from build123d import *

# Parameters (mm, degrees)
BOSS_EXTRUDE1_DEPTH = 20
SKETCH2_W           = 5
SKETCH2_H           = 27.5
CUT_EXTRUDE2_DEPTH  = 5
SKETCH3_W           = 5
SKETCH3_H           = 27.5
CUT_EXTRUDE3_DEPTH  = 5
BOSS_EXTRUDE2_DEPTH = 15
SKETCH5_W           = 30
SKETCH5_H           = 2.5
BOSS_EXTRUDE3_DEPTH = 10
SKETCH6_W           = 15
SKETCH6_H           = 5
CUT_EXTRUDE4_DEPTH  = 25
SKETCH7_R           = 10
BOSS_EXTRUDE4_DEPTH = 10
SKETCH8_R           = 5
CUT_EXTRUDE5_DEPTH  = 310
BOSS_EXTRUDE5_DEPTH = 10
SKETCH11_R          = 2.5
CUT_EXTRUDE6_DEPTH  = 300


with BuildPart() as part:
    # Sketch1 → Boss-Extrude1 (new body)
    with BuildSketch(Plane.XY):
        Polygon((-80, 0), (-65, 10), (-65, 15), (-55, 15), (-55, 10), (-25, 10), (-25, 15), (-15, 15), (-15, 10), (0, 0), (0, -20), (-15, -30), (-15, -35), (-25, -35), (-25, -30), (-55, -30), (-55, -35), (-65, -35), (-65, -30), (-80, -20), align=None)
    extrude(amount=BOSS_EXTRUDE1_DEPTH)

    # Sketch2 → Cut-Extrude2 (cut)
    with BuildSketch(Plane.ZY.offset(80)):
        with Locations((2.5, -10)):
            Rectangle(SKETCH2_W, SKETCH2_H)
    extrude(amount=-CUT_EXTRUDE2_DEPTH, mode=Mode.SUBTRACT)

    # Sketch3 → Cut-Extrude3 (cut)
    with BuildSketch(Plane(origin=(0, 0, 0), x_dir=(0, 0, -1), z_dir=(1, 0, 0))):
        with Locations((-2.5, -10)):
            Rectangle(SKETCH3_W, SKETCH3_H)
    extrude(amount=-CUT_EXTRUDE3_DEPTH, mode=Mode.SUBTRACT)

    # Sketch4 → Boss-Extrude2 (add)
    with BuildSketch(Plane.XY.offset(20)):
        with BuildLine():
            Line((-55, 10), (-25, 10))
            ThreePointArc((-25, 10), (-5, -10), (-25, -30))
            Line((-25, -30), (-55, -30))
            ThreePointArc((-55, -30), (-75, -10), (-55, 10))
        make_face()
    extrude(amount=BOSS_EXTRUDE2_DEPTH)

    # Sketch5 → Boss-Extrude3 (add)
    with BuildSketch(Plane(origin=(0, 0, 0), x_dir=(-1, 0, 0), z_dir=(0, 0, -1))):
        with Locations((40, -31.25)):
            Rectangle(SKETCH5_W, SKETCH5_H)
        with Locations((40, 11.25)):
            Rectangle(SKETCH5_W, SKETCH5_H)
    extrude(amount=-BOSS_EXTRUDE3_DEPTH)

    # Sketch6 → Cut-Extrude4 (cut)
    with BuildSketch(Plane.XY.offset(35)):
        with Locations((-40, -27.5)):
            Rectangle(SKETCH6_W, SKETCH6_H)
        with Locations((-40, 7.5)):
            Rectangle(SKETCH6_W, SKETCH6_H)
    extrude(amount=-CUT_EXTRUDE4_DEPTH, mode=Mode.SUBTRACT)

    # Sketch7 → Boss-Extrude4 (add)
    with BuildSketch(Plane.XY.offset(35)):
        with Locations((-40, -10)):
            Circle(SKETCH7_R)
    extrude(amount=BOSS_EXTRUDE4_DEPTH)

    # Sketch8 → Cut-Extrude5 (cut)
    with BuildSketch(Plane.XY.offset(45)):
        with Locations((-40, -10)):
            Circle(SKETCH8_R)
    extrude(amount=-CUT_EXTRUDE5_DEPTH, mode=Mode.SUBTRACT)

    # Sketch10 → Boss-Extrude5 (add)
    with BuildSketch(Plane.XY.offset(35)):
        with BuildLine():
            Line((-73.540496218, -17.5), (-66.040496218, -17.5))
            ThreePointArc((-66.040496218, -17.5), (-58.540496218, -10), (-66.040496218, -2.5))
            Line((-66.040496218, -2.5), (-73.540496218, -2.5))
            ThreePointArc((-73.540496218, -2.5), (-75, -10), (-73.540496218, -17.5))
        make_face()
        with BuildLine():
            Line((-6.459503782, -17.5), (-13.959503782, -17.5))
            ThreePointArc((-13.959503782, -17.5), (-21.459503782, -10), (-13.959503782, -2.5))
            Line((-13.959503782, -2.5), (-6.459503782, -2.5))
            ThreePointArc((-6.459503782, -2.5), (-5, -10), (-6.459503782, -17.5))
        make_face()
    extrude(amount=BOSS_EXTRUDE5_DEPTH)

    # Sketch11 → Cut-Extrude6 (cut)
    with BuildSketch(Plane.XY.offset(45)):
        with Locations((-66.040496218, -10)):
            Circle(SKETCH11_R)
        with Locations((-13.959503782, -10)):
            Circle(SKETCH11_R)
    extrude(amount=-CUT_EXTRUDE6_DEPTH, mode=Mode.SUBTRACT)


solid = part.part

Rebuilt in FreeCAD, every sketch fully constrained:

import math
import FreeCAD as App
import Part
import Sketcher

doc = App.newDocument("Part")
body = doc.addObject("PartDesign::Body", "Body")

# Sketch on XY plane
sketch1 = body.newObject("Sketcher::SketchObject", "Sketch")
sketch1.AttachmentSupport = (doc.getObject("XY_Plane"), [""])
sketch1.MapMode = "FlatFace"
sketch1.addGeometry(Part.LineSegment(App.Vector(-65, 10, 0), App.Vector(-80, 0, 0)), False)
sketch1.addGeometry(Part.LineSegment(App.Vector(-80, 0, 0), App.Vector(-80, -20, 0)), False)
sketch1.addGeometry(Part.LineSegment(App.Vector(-80, -20, 0), App.Vector(-65, -30, 0)), False)
sketch1.addGeometry(Part.LineSegment(App.Vector(-65, -30, 0), App.Vector(-65, -35, 0)), False)
sketch1.addGeometry(Part.LineSegment(App.Vector(-65, -35, 0), App.Vector(-55, -35, 0)), False)
sketch1.addGeometry(Part.LineSegment(App.Vector(-55, -35, 0), App.Vector(-55, -30, 0)), False)
sketch1.addGeometry(Part.LineSegment(App.Vector(-55, -30, 0), App.Vector(-25, -30, 0)), False)
sketch1.addGeometry(Part.LineSegment(App.Vector(-25, -30, 0), App.Vector(-25, -35, 0)), False)
sketch1.addGeometry(Part.LineSegment(App.Vector(-25, -35, 0), App.Vector(-15, -35, 0)), False)
sketch1.addGeometry(Part.LineSegment(App.Vector(-15, -35, 0), App.Vector(-15, -30, 0)), False)
sketch1.addGeometry(Part.LineSegment(App.Vector(-15, -30, 0), App.Vector(0, -20, 0)), False)
sketch1.addGeometry(Part.LineSegment(App.Vector(0, -20, 0), App.Vector(0, 0, 0)), False)
sketch1.addGeometry(Part.LineSegment(App.Vector(0, 0, 0), App.Vector(-15, 10, 0)), False)
sketch1.addGeometry(Part.LineSegment(App.Vector(-15, 10, 0), App.Vector(-15, 15, 0)), False)
sketch1.addGeometry(Part.LineSegment(App.Vector(-15, 15, 0), App.Vector(-25, 15, 0)), False)
sketch1.addGeometry(Part.LineSegment(App.Vector(-25, 15, 0), App.Vector(-25, 10, 0)), False)
sketch1.addGeometry(Part.LineSegment(App.Vector(-25, 10, 0), App.Vector(-55, 10, 0)), False)
sketch1.addGeometry(Part.LineSegment(App.Vector(-55, 10, 0), App.Vector(-55, 15, 0)), False)
sketch1.addGeometry(Part.LineSegment(App.Vector(-55, 15, 0), App.Vector(-65, 15, 0)), False)
sketch1.addGeometry(Part.LineSegment(App.Vector(-65, 15, 0), App.Vector(-65, 10, 0)), False)
sketch1.addConstraint(Sketcher.Constraint("Coincident", 0, 2, 1, 1))
sketch1.addConstraint(Sketcher.Constraint("Coincident", 1, 2, 2, 1))
sketch1.addConstraint(Sketcher.Constraint("Coincident", 2, 2, 3, 1))
sketch1.addConstraint(Sketcher.Constraint("Coincident", 3, 2, 4, 1))
sketch1.addConstraint(Sketcher.Constraint("Coincident", 4, 2, 5, 1))
sketch1.addConstraint(Sketcher.Constraint("Coincident", 5, 2, 6, 1))
sketch1.addConstraint(Sketcher.Constraint("Coincident", 6, 2, 7, 1))
sketch1.addConstraint(Sketcher.Constraint("Coincident", 7, 2, 8, 1))
sketch1.addConstraint(Sketcher.Constraint("Coincident", 8, 2, 9, 1))
sketch1.addConstraint(Sketcher.Constraint("Coincident", 9, 2, 10, 1))
sketch1.addConstraint(Sketcher.Constraint("Coincident", 10, 2, 11, 1))
sketch1.addConstraint(Sketcher.Constraint("Coincident", 11, 2, 12, 1))
sketch1.addConstraint(Sketcher.Constraint("Coincident", 12, 2, 13, 1))
sketch1.addConstraint(Sketcher.Constraint("Coincident", 13, 2, 14, 1))
sketch1.addConstraint(Sketcher.Constraint("Coincident", 14, 2, 15, 1))
sketch1.addConstraint(Sketcher.Constraint("Coincident", 15, 2, 16, 1))
sketch1.addConstraint(Sketcher.Constraint("Coincident", 16, 2, 17, 1))
sketch1.addConstraint(Sketcher.Constraint("Coincident", 17, 2, 18, 1))
sketch1.addConstraint(Sketcher.Constraint("Coincident", 18, 2, 19, 1))
sketch1.addConstraint(Sketcher.Constraint("Coincident", 19, 2, 0, 1))
sketch1.addConstraint(Sketcher.Constraint("Vertical", 1))
sketch1.addConstraint(Sketcher.Constraint("Vertical", 3))
sketch1.addConstraint(Sketcher.Constraint("Horizontal", 4))
sketch1.addConstraint(Sketcher.Constraint("Vertical", 5))
sketch1.addConstraint(Sketcher.Constraint("Horizontal", 6))
sketch1.addConstraint(Sketcher.Constraint("Vertical", 7))
sketch1.addConstraint(Sketcher.Constraint("Horizontal", 8))
sketch1.addConstraint(Sketcher.Constraint("Vertical", 9))
sketch1.addConstraint(Sketcher.Constraint("Vertical", 11))
sketch1.addConstraint(Sketcher.Constraint("Vertical", 13))
sketch1.addConstraint(Sketcher.Constraint("Horizontal", 14))
sketch1.addConstraint(Sketcher.Constraint("Vertical", 15))
sketch1.addConstraint(Sketcher.Constraint("Horizontal", 16))
sketch1.addConstraint(Sketcher.Constraint("Vertical", 17))
sketch1.addConstraint(Sketcher.Constraint("Horizontal", 18))
sketch1.addConstraint(Sketcher.Constraint("Vertical", 19))
sketch1.addConstraint(Sketcher.Constraint("Coincident", 11, 2, -1, 1))
sketch1.addConstraint(Sketcher.Constraint("PointOnObject", 0, 2, -1))
sketch1.addConstraint(Sketcher.Constraint("Parallel", 0, 10))
sketch1.addConstraint(Sketcher.Constraint("Parallel", 2, 12))
sketch1.addConstraint(Sketcher.Constraint("Horizontal", 2, 2, 5, 2))
sketch1.addConstraint(Sketcher.Constraint("Horizontal", 4, 2, 7, 2))
sketch1.addConstraint(Sketcher.Constraint("Horizontal", 6, 2, 9, 2))
sketch1.addConstraint(Sketcher.Constraint("Horizontal", 1, 2, 10, 2))
sketch1.addConstraint(Sketcher.Constraint("Horizontal", 12, 2, 15, 2))
sketch1.addConstraint(Sketcher.Constraint("Horizontal", 14, 2, 17, 2))
sketch1.addConstraint(Sketcher.Constraint("Horizontal", 16, 2, 19, 2))
sketch1.addConstraint(Sketcher.Constraint("Vertical", 9, 2, 12, 2))
sketch1.addConstraint(Sketcher.Constraint("Vertical", 7, 2, 14, 2))
sketch1.addConstraint(Sketcher.Constraint("Vertical", 5, 2, 16, 2))
sketch1.addConstraint(Sketcher.Constraint("Vertical", 3, 2, 18, 2))
sketch1.addConstraint(Sketcher.Constraint("Equal", 4, 8))
sketch1.addConstraint(Sketcher.Constraint("Equal", 9, 13))
sketch1.addConstraint(Sketcher.Constraint("DistanceX", 4, 1, 4, 2, 10.0))
sketch1.addConstraint(Sketcher.Constraint("DistanceX", 6, 1, 6, 2, 30.0))
sketch1.addConstraint(Sketcher.Constraint("DistanceY", 1, 2, 1, 1, 20.0))
sketch1.addConstraint(Sketcher.Constraint("DistanceY", 3, 2, 3, 1, 5.0))
sketch1.addConstraint(Sketcher.Constraint("DistanceX", 0, 2, -1, 1, 80.0))
sketch1.addConstraint(Sketcher.Constraint("DistanceY", 2, 2, -1, 1, 30.0))
pad1 = body.newObject("PartDesign::Pad", "Pad")
pad1.Profile = sketch1
pad1.Length = 20

# Sketch on YZ plane
sketch2 = body.newObject("Sketcher::SketchObject", "Sketch001")
sketch2.AttachmentSupport = (doc.getObject("YZ_Plane"), [""])
sketch2.MapMode = "FlatFace"
sketch2.AttachmentOffset = App.Placement(App.Vector(0, 0, -80), App.Rotation())
sketch2.addGeometry(Part.LineSegment(App.Vector(4, 0, 0), App.Vector(-24, 0, 0)), False)
sketch2.addGeometry(Part.LineSegment(App.Vector(-24, 0, 0), App.Vector(-24, 5, 0)), False)
sketch2.addGeometry(Part.LineSegment(App.Vector(-24, 5, 0), App.Vector(4, 5, 0)), False)
sketch2.addGeometry(Part.LineSegment(App.Vector(4, 5, 0), App.Vector(4, 0, 0)), False)
sketch2.addConstraint(Sketcher.Constraint("Coincident", 0, 2, 1, 1))
sketch2.addConstraint(Sketcher.Constraint("Coincident", 1, 2, 2, 1))
sketch2.addConstraint(Sketcher.Constraint("Coincident", 2, 2, 3, 1))
sketch2.addConstraint(Sketcher.Constraint("Coincident", 3, 2, 0, 1))
sketch2.addConstraint(Sketcher.Constraint("Horizontal", 0))
sketch2.addConstraint(Sketcher.Constraint("Vertical", 1))
sketch2.addConstraint(Sketcher.Constraint("Horizontal", 2))
sketch2.addConstraint(Sketcher.Constraint("Vertical", 3))
sketch2.addConstraint(Sketcher.Constraint("PointOnObject", 0, 2, -1))
sketch2.addConstraint(Sketcher.Constraint("DistanceY", 1, 1, 1, 2, 5.0))
sketch2.addConstraint(Sketcher.Constraint("DistanceX", 0, 2, 0, 1, 27.5))
sketch2.addConstraint(Sketcher.Constraint("DistanceX", 0, 2, -1, 1, 23.75))
pocket1 = body.newObject("PartDesign::Pocket", "Pocket")
pocket1.Profile = sketch2
pocket1.Length = 5
pocket1.Reversed = True

# Sketch on YZ plane
sketch3 = body.newObject("Sketcher::SketchObject", "Sketch002")
sketch3.AttachmentSupport = (doc.getObject("YZ_Plane"), [""])
sketch3.MapMode = "FlatFace"
sketch3.addGeometry(Part.LineSegment(App.Vector(4, 5, 0), App.Vector(-24, 5, 0)), False)
sketch3.addGeometry(Part.LineSegment(App.Vector(-24, 5, 0), App.Vector(-24, 0, 0)), False)
sketch3.addGeometry(Part.LineSegment(App.Vector(-24, 0, 0), App.Vector(4, 0, 0)), False)
sketch3.addGeometry(Part.LineSegment(App.Vector(4, 0, 0), App.Vector(4, 5, 0)), False)
sketch3.addConstraint(Sketcher.Constraint("Coincident", 0, 2, 1, 1))
sketch3.addConstraint(Sketcher.Constraint("Coincident", 1, 2, 2, 1))
sketch3.addConstraint(Sketcher.Constraint("Coincident", 2, 2, 3, 1))
sketch3.addConstraint(Sketcher.Constraint("Coincident", 3, 2, 0, 1))
sketch3.addConstraint(Sketcher.Constraint("Horizontal", 0))
sketch3.addConstraint(Sketcher.Constraint("Vertical", 1))
sketch3.addConstraint(Sketcher.Constraint("Horizontal", 2))
sketch3.addConstraint(Sketcher.Constraint("Vertical", 3))
sketch3.addConstraint(Sketcher.Constraint("PointOnObject", 1, 2, -1))
sketch3.addConstraint(Sketcher.Constraint("DistanceY", 1, 2, 1, 1, 5.0))
sketch3.addConstraint(Sketcher.Constraint("DistanceX", 0, 2, 0, 1, 27.5))
sketch3.addConstraint(Sketcher.Constraint("DistanceX", 0, 2, -1, 1, 23.75))
pocket2 = body.newObject("PartDesign::Pocket", "Pocket001")
pocket2.Profile = sketch3
pocket2.Length = 5

# Sketch on XY plane
sketch4 = body.newObject("Sketcher::SketchObject", "Sketch003")
sketch4.AttachmentSupport = (doc.getObject("XY_Plane"), [""])
sketch4.MapMode = "FlatFace"
sketch4.AttachmentOffset = App.Placement(App.Vector(0, 0, 20), App.Rotation())
sketch4.addGeometry(Part.LineSegment(App.Vector(-25, 10, 0), App.Vector(-55, 10, 0)), False)
sketch4.addGeometry(Part.ArcOfCircle(Part.Circle(App.Vector(-55, -10, 0), App.Vector(0, 0, 1), 20), math.radians(90), math.radians(270)), False)
sketch4.addGeometry(Part.LineSegment(App.Vector(-55, -30, 0), App.Vector(-25, -30, 0)), False)
sketch4.addGeometry(Part.ArcOfCircle(Part.Circle(App.Vector(-25, -10, 0), App.Vector(0, 0, 1), 20), math.radians(-90), math.radians(90)), False)
sketch4.addConstraint(Sketcher.Constraint("Tangent", 0, 2, 1, 1))
sketch4.addConstraint(Sketcher.Constraint("Tangent", 1, 2, 2, 1))
sketch4.addConstraint(Sketcher.Constraint("Tangent", 2, 2, 3, 1))
sketch4.addConstraint(Sketcher.Constraint("Tangent", 3, 2, 0, 1))
sketch4.addConstraint(Sketcher.Constraint("Horizontal", 0))
sketch4.addConstraint(Sketcher.Constraint("Horizontal", 2))
sketch4.addConstraint(Sketcher.Constraint("Radius", 1, 20.0))
sketch4.addConstraint(Sketcher.Constraint("DistanceX", 0, 2, 0, 1, 30.0))
sketch4.addConstraint(Sketcher.Constraint("DistanceX", 1, 3, -1, 1, 55.0))
sketch4.addConstraint(Sketcher.Constraint("DistanceY", 1, 3, -1, 1, 10.0))
pad2 = body.newObject("PartDesign::Pad", "Pad001")
pad2.Profile = sketch4
pad2.Length = 15

# Sketch on XY plane
sketch5 = body.newObject("Sketcher::SketchObject", "Sketch004")
sketch5.AttachmentSupport = (doc.getObject("XY_Plane"), [""])
sketch5.MapMode = "FlatFace"
sketch5.addGeometry(Part.LineSegment(App.Vector(-25, -30, 0), App.Vector(-25, -32.5, 0)), False)
sketch5.addGeometry(Part.LineSegment(App.Vector(-25, -32.5, 0), App.Vector(-55, -32.5, 0)), False)
sketch5.addGeometry(Part.LineSegment(App.Vector(-55, -32.5, 0), App.Vector(-55, -30, 0)), False)
sketch5.addGeometry(Part.LineSegment(App.Vector(-55, -30, 0), App.Vector(-25, -30, 0)), False)
sketch5.addGeometry(Part.LineSegment(App.Vector(-25, 12.5, 0), App.Vector(-25, 10, 0)), False)
sketch5.addGeometry(Part.LineSegment(App.Vector(-25, 10, 0), App.Vector(-55, 10, 0)), False)
sketch5.addGeometry(Part.LineSegment(App.Vector(-55, 10, 0), App.Vector(-55, 12.5, 0)), False)
sketch5.addGeometry(Part.LineSegment(App.Vector(-55, 12.5, 0), App.Vector(-25, 12.5, 0)), False)
sketch5.addConstraint(Sketcher.Constraint("Coincident", 0, 2, 1, 1))
sketch5.addConstraint(Sketcher.Constraint("Coincident", 1, 2, 2, 1))
sketch5.addConstraint(Sketcher.Constraint("Coincident", 2, 2, 3, 1))
sketch5.addConstraint(Sketcher.Constraint("Coincident", 3, 2, 0, 1))
sketch5.addConstraint(Sketcher.Constraint("Coincident", 4, 2, 5, 1))
sketch5.addConstraint(Sketcher.Constraint("Coincident", 5, 2, 6, 1))
sketch5.addConstraint(Sketcher.Constraint("Coincident", 6, 2, 7, 1))
sketch5.addConstraint(Sketcher.Constraint("Coincident", 7, 2, 4, 1))
sketch5.addConstraint(Sketcher.Constraint("Vertical", 0))
sketch5.addConstraint(Sketcher.Constraint("Horizontal", 1))
sketch5.addConstraint(Sketcher.Constraint("Vertical", 2))
sketch5.addConstraint(Sketcher.Constraint("Horizontal", 3))
sketch5.addConstraint(Sketcher.Constraint("Vertical", 4))
sketch5.addConstraint(Sketcher.Constraint("Horizontal", 5))
sketch5.addConstraint(Sketcher.Constraint("Vertical", 6))
sketch5.addConstraint(Sketcher.Constraint("Horizontal", 7))
sketch5.addConstraint(Sketcher.Constraint("Vertical", 3, 2, 4, 2))
sketch5.addConstraint(Sketcher.Constraint("Vertical", 2, 2, 5, 2))
sketch5.addConstraint(Sketcher.Constraint("Equal", 2, 4))
sketch5.addConstraint(Sketcher.Constraint("DistanceX", 1, 2, 1, 1, 30.0))
sketch5.addConstraint(Sketcher.Constraint("DistanceY", 0, 2, 0, 1, 2.5))
sketch5.addConstraint(Sketcher.Constraint("DistanceX", 0, 2, -1, 1, 25.0))
sketch5.addConstraint(Sketcher.Constraint("DistanceY", 2, 2, -1, 1, 30.0))
sketch5.addConstraint(Sketcher.Constraint("DistanceY", -1, 1, 4, 2, 10.0))
pad3 = body.newObject("PartDesign::Pad", "Pad002")
pad3.Profile = sketch5
pad3.Length = 10

# Sketch on XY plane
sketch6 = body.newObject("Sketcher::SketchObject", "Sketch005")
sketch6.AttachmentSupport = (doc.getObject("XY_Plane"), [""])
sketch6.MapMode = "FlatFace"
sketch6.AttachmentOffset = App.Placement(App.Vector(0, 0, 35), App.Rotation())
sketch6.addGeometry(Part.LineSegment(App.Vector(-48, -25, 0), App.Vector(-48, -30, 0)), False)
sketch6.addGeometry(Part.LineSegment(App.Vector(-48, -30, 0), App.Vector(-32, -30, 0)), False)
sketch6.addGeometry(Part.LineSegment(App.Vector(-32, -30, 0), App.Vector(-32, -25, 0)), False)
sketch6.addGeometry(Part.LineSegment(App.Vector(-32, -25, 0), App.Vector(-48, -25, 0)), False)
sketch6.addGeometry(Part.LineSegment(App.Vector(-48, 10, 0), App.Vector(-48, 5, 0)), False)
sketch6.addGeometry(Part.LineSegment(App.Vector(-48, 5, 0), App.Vector(-32, 5, 0)), False)
sketch6.addGeometry(Part.LineSegment(App.Vector(-32, 5, 0), App.Vector(-32, 10, 0)), False)
sketch6.addGeometry(Part.LineSegment(App.Vector(-32, 10, 0), App.Vector(-48, 10, 0)), False)
sketch6.addConstraint(Sketcher.Constraint("Coincident", 0, 2, 1, 1))
sketch6.addConstraint(Sketcher.Constraint("Coincident", 1, 2, 2, 1))
sketch6.addConstraint(Sketcher.Constraint("Coincident", 2, 2, 3, 1))
sketch6.addConstraint(Sketcher.Constraint("Coincident", 3, 2, 0, 1))
sketch6.addConstraint(Sketcher.Constraint("Coincident", 4, 2, 5, 1))
sketch6.addConstraint(Sketcher.Constraint("Coincident", 5, 2, 6, 1))
sketch6.addConstraint(Sketcher.Constraint("Coincident", 6, 2, 7, 1))
sketch6.addConstraint(Sketcher.Constraint("Coincident", 7, 2, 4, 1))
sketch6.addConstraint(Sketcher.Constraint("Vertical", 0))
sketch6.addConstraint(Sketcher.Constraint("Horizontal", 1))
sketch6.addConstraint(Sketcher.Constraint("Vertical", 2))
sketch6.addConstraint(Sketcher.Constraint("Horizontal", 3))
sketch6.addConstraint(Sketcher.Constraint("Vertical", 4))
sketch6.addConstraint(Sketcher.Constraint("Horizontal", 5))
sketch6.addConstraint(Sketcher.Constraint("Vertical", 6))
sketch6.addConstraint(Sketcher.Constraint("Horizontal", 7))
sketch6.addConstraint(Sketcher.Constraint("Vertical", 3, 2, 4, 2))
sketch6.addConstraint(Sketcher.Constraint("Vertical", 2, 2, 5, 2))
sketch6.addConstraint(Sketcher.Constraint("Equal", 2, 4))
sketch6.addConstraint(Sketcher.Constraint("DistanceX", 1, 1, 1, 2, 15.0))
sketch6.addConstraint(Sketcher.Constraint("DistanceY", 0, 2, 0, 1, 5.0))
sketch6.addConstraint(Sketcher.Constraint("DistanceY", 0, 2, -1, 1, 30.0))
sketch6.addConstraint(Sketcher.Constraint("DistanceY", -1, 1, 4, 2, 5.0))
sketch6.addConstraint(Sketcher.Constraint("DistanceX", 0, 2, -1, 1, 47.5))
pocket3 = body.newObject("PartDesign::Pocket", "Pocket002")
pocket3.Profile = sketch6
pocket3.Length = 25

# Sketch on XY plane
sketch7 = body.newObject("Sketcher::SketchObject", "Sketch006")
sketch7.AttachmentSupport = (doc.getObject("XY_Plane"), [""])
sketch7.MapMode = "FlatFace"
sketch7.AttachmentOffset = App.Placement(App.Vector(0, 0, 35), App.Rotation())
sketch7.addGeometry(Part.Circle(App.Vector(-40, -10, 0), App.Vector(0, 0, 1), 10), False)
sketch7.addConstraint(Sketcher.Constraint("Diameter", 0, 20.0))
sketch7.addConstraint(Sketcher.Constraint("DistanceX", 0, 3, -1, 1, 40.0))
sketch7.addConstraint(Sketcher.Constraint("DistanceY", 0, 3, -1, 1, 10.0))
pad4 = body.newObject("PartDesign::Pad", "Pad003")
pad4.Profile = sketch7
pad4.Length = 10

# Sketch on XY plane
sketch8 = body.newObject("Sketcher::SketchObject", "Sketch007")
sketch8.AttachmentSupport = (doc.getObject("XY_Plane"), [""])
sketch8.MapMode = "FlatFace"
sketch8.AttachmentOffset = App.Placement(App.Vector(0, 0, 45), App.Rotation())
sketch8.addGeometry(Part.Circle(App.Vector(-40, -10, 0), App.Vector(0, 0, 1), 5), False)
sketch8.addConstraint(Sketcher.Constraint("Diameter", 0, 10.0))
sketch8.addConstraint(Sketcher.Constraint("DistanceX", 0, 3, -1, 1, 40.0))
sketch8.addConstraint(Sketcher.Constraint("DistanceY", 0, 3, -1, 1, 10.0))
pocket4 = body.newObject("PartDesign::Pocket", "Pocket003")
pocket4.Profile = sketch8
pocket4.Length = 310

# Sketch on XY plane
sketch9 = body.newObject("Sketcher::SketchObject", "Sketch008")
sketch9.AttachmentSupport = (doc.getObject("XY_Plane"), [""])
sketch9.MapMode = "FlatFace"
sketch9.AttachmentOffset = App.Placement(App.Vector(0, 0, 35), App.Rotation())
sketch9.addGeometry(Part.LineSegment(App.Vector(-74, -18, 0), App.Vector(-66, -18, 0)), False)
sketch9.addGeometry(Part.ArcOfCircle(Part.Circle(App.Vector(-66, -10, 0), App.Vector(0, 0, 1), 8), math.radians(-90), math.radians(90)), False)
sketch9.addGeometry(Part.LineSegment(App.Vector(-66, -2, 0), App.Vector(-74, -2, 0)), False)
sketch9.addGeometry(Part.ArcOfCircle(Part.Circle(App.Vector(-55, -10, 0), App.Vector(0, 0, 1), 20), math.radians(158), math.radians(202)), False)
sketch9.addGeometry(Part.LineSegment(App.Vector(-14, -18, 0), App.Vector(-6, -18, 0)), False)
sketch9.addGeometry(Part.ArcOfCircle(Part.Circle(App.Vector(-25, -10, 0), App.Vector(0, 0, 1), 20), math.radians(-22), math.radians(22)), False)
sketch9.addGeometry(Part.LineSegment(App.Vector(-6, -2, 0), App.Vector(-14, -2, 0)), False)
sketch9.addGeometry(Part.ArcOfCircle(Part.Circle(App.Vector(-14, -10, 0), App.Vector(0, 0, 1), 8), math.radians(90), math.radians(270)), False)
sketch9.addConstraint(Sketcher.Constraint("Tangent", 0, 2, 1, 1))
sketch9.addConstraint(Sketcher.Constraint("Tangent", 1, 2, 2, 1))
sketch9.addConstraint(Sketcher.Constraint("Coincident", 2, 2, 3, 1))
sketch9.addConstraint(Sketcher.Constraint("Coincident", 3, 2, 0, 1))
sketch9.addConstraint(Sketcher.Constraint("Coincident", 4, 2, 5, 1))
sketch9.addConstraint(Sketcher.Constraint("Coincident", 5, 2, 6, 1))
sketch9.addConstraint(Sketcher.Constraint("Tangent", 6, 2, 7, 1))
sketch9.addConstraint(Sketcher.Constraint("Tangent", 7, 2, 4, 1))
sketch9.addConstraint(Sketcher.Constraint("Horizontal", 0))
sketch9.addConstraint(Sketcher.Constraint("Horizontal", 2))
sketch9.addConstraint(Sketcher.Constraint("Horizontal", 4))
sketch9.addConstraint(Sketcher.Constraint("Horizontal", 6))
sketch9.addConstraint(Sketcher.Constraint("Equal", 3, 5))
sketch9.addConstraint(Sketcher.Constraint("Equal", 1, 7))
sketch9.addConstraint(Sketcher.Constraint("Horizontal", 1, 3, 3, 3))
sketch9.addConstraint(Sketcher.Constraint("Horizontal", 3, 3, 5, 3))
sketch9.addConstraint(Sketcher.Constraint("Horizontal", 5, 3, 7, 3))
sketch9.addConstraint(Sketcher.Constraint("Equal", 2, 4))
sketch9.addConstraint(Sketcher.Constraint("Radius", 3, 20.0))
sketch9.addConstraint(Sketcher.Constraint("Radius", 1, 7.5))
sketch9.addConstraint(Sketcher.Constraint("DistanceX", 0, 1, 0, 2, 7.5))
sketch9.addConstraint(Sketcher.Constraint("DistanceY", 1, 3, -1, 1, 10.0))
sketch9.addConstraint(Sketcher.Constraint("DistanceX", 3, 3, -1, 1, 55.0))
sketch9.addConstraint(Sketcher.Constraint("DistanceX", 5, 3, -1, 1, 25.0))
pad5 = body.newObject("PartDesign::Pad", "Pad004")
pad5.Profile = sketch9
pad5.Length = 10

# Sketch on XY plane
sketch10 = body.newObject("Sketcher::SketchObject", "Sketch009")
sketch10.AttachmentSupport = (doc.getObject("XY_Plane"), [""])
sketch10.MapMode = "FlatFace"
sketch10.AttachmentOffset = App.Placement(App.Vector(0, 0, 45), App.Rotation())
sketch10.addGeometry(Part.Circle(App.Vector(-66, -10, 0), App.Vector(0, 0, 1), 2.5), False)
sketch10.addGeometry(Part.Circle(App.Vector(-14, -10, 0), App.Vector(0, 0, 1), 2.5), False)
sketch10.addConstraint(Sketcher.Constraint("Equal", 0, 1))
sketch10.addConstraint(Sketcher.Constraint("Horizontal", 0, 3, 1, 3))
sketch10.addConstraint(Sketcher.Constraint("Diameter", 0, 5.0))
sketch10.addConstraint(Sketcher.Constraint("DistanceY", 0, 3, -1, 1, 10.0))
sketch10.addConstraint(Sketcher.Constraint("DistanceX", 0, 3, -1, 1, 66.040496))
sketch10.addConstraint(Sketcher.Constraint("DistanceX", 1, 3, -1, 1, 13.959504))
pocket5 = body.newObject("PartDesign::Pocket", "Pocket004")
pocket5.Profile = sketch10
pocket5.Length = 300

doc.recompute()
